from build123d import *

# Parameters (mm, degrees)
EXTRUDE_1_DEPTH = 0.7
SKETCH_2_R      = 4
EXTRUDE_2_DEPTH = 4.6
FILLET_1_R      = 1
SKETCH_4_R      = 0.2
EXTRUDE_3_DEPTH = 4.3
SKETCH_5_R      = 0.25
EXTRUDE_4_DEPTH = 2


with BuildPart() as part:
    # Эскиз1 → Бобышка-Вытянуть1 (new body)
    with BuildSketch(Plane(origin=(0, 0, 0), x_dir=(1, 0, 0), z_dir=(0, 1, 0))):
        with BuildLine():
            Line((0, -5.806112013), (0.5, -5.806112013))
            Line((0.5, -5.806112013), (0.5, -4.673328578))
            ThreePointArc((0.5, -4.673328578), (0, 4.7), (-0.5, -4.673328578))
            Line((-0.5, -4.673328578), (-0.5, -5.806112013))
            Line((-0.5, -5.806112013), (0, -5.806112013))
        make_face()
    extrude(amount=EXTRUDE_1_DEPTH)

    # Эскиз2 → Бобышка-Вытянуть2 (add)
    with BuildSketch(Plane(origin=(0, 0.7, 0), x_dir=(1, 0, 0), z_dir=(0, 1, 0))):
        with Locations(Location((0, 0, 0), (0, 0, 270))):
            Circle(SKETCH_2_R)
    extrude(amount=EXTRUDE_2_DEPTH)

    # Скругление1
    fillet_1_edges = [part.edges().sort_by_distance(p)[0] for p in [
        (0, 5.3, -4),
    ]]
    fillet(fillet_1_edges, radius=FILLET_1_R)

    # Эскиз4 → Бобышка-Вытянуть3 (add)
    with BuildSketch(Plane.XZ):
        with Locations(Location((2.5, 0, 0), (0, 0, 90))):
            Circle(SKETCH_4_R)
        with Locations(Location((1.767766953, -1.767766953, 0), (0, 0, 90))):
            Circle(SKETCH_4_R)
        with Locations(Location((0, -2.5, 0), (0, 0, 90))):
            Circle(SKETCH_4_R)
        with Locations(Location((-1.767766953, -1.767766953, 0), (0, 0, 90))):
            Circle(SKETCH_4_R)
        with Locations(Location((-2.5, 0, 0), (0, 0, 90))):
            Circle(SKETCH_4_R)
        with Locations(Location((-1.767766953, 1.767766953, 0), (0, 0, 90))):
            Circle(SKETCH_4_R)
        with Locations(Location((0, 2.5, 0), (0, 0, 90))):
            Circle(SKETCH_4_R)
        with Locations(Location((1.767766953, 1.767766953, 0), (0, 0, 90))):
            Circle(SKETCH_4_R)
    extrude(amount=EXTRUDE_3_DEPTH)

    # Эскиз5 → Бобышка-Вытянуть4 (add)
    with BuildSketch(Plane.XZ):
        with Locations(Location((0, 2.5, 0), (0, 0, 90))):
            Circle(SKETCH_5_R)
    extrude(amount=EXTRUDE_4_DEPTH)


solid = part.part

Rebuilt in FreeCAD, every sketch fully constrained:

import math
import FreeCAD as App
import Part
import Sketcher

V = App.Vector
Q = App.Units.Quantity


def edges_at(feature, points):
    """Names of the edges that pass closest to the given points."""
    edges = feature.Shape.Edges
    near = lambda p: min(range(len(edges)), key=lambda i: edges[i].distToShape(Part.Vertex(*p))[0])
    return sorted({f"Edge{near(p) + 1}" for p in points})

doc = App.newDocument("Part")
body = doc.addObject("PartDesign::Body", "Body")

# Sketch on XZ plane
sketch1 = doc.addObject("Sketcher::SketchObject", "Sketch")
body.addObject(sketch1)
sketch1.AttachmentSupport = (doc.XZ_Plane, [""])
sketch1.MapMode = "FlatFace"
sketch1.addGeometry([
    Part.LineSegment(V(0.5, 5.8, 0), V(0.5, 4.7, 0)),
    Part.ArcOfCircle(Part.Circle(V(0, 0, 0), V(0, 0, 1), 4.7), math.radians(96), math.radians(444)),
    Part.LineSegment(V(-0.5, 4.7, 0), V(-0.5, 5.8, 0)),
    Part.LineSegment(V(-0.5, 5.8, 0), V(0.5, 5.8, 0)),
], False)
sketch1.addConstraint([
    Sketcher.Constraint("Coincident", 0, 2, 1, 2),
    Sketcher.Constraint("Coincident", 1, 1, 2, 1),
    Sketcher.Constraint("Coincident", 2, 2, 3, 1),
    Sketcher.Constraint("Coincident", 3, 2, 0, 1),
    Sketcher.Constraint("Vertical", 0),
    Sketcher.Constraint("Vertical", 2),
    Sketcher.Constraint("Horizontal", 3),
    Sketcher.Constraint("Coincident", 1, 3, -1, 1),
    Sketcher.Constraint("Horizontal", 0, 2, 1, 1),
    Sketcher.Constraint("Radius", 1, Q("4.7 mm")),
    Sketcher.Constraint("DistanceX", 3, 1, 3, 2, Q("1 mm")),
    Sketcher.Constraint("DistanceY", 0, 2, 0, 1, Q("1.132783 mm")),
])
pad1 = doc.addObject("PartDesign::Pad", "Pad")
body.addObject(pad1)
pad1.Profile = sketch1
pad1.Length = 0.7
pad1.Reversed = True

# Sketch on XZ plane
sketch2 = doc.addObject("Sketcher::SketchObject", "Sketch001")
body.addObject(sketch2)
sketch2.AttachmentSupport = (doc.XZ_Plane, [""])
sketch2.MapMode = "FlatFace"
sketch2.AttachmentOffset = App.Placement(V(0, 0, -0.7), App.Rotation())
sketch2.addGeometry(Part.Circle(V(0, 0, 0), V(0, 0, 1), 4), False)
sketch2.addConstraint([
    Sketcher.Constraint("Coincident", 0, 3, -1, 1),
    Sketcher.Constraint("Diameter", 0, Q("8 mm")),
])
pad2 = doc.addObject("PartDesign::Pad", "Pad001")
body.addObject(pad2)
pad2.Profile = sketch2
pad2.Length = 4.6
pad2.Reversed = True
doc.recompute()

fillet = doc.addObject("PartDesign::Fillet", "Fillet")
body.addObject(fillet)
fillet.Base = (pad2, edges_at(pad2, [(0, 5.3, -4)]))
fillet.Radius = 1

# Sketch on XZ plane
sketch3 = doc.addObject("Sketcher::SketchObject", "Sketch002")
body.addObject(sketch3)
sketch3.AttachmentSupport = (doc.XZ_Plane, [""])
sketch3.MapMode = "FlatFace"
sketch3.addGeometry([
    Part.Circle(V(2.5, 0, 0), V(0, 0, 1), 0.2),  # 0
    Part.Circle(V(1.77, -1.77, 0), V(0, 0, 1), 0.2),  # 1
    Part.Circle(V(0, -2.5, 0), V(0, 0, 1), 0.2),  # 2
    Part.Circle(V(-1.77, -1.77, 0), V(0, 0, 1), 0.2),  # 3
    Part.Circle(V(-2.5, 0, 0), V(0, 0, 1), 0.2),  # 4
    Part.Circle(V(-1.77, 1.77, 0), V(0, 0, 1), 0.2),  # 5
    Part.Circle(V(0, 2.5, 0), V(0, 0, 1), 0.2),  # 6
    Part.Circle(V(1.77, 1.77, 0), V(0, 0, 1), 0.2),  # 7
], False)
sketch3.addConstraint([
    Sketcher.Constraint("Equal", 0, 1),
    Sketcher.Constraint("Equal", 1, 2),
    Sketcher.Constraint("Equal", 2, 3),
    Sketcher.Constraint("Equal", 3, 4),
    Sketcher.Constraint("Equal", 4, 5),
    Sketcher.Constraint("Equal", 5, 6),
    Sketcher.Constraint("Equal", 6, 7),
    Sketcher.Constraint("Symmetric", 0, 3, 4, 3, -1, 1),
    Sketcher.Constraint("Symmetric", 1, 3, 5, 3, -1, 1),
    Sketcher.Constraint("Symmetric", 2, 3, 6, 3, -1, 1),
    Sketcher.Constraint("Symmetric", 3, 3, 7, 3, -1, 1),
    Sketcher.Constraint("Symmetric", 1, 3, 3, 3, -2),
    Sketcher.Constraint("PointOnObject", 0, 3, -1),
    Sketcher.Constraint("PointOnObject", 2, 3, -2),
    Sketcher.Constraint("Diameter", 0, Q("0.4 mm")),
    Sketcher.Constraint("DistanceX", 4, 3, 0, 3, Q("5 mm")),
    Sketcher.Constraint("DistanceY", 2, 3, -1, 1, Q("2.5 mm")),
    Sketcher.Constraint("DistanceX", -1, 1, 1, 3, Q("1.767767 mm")),
    Sketcher.Constraint("DistanceY", 1, 3, -1, 1, Q("1.767767 mm")),
])
pad3 = doc.addObject("PartDesign::Pad", "Pad002")
body.addObject(pad3)
pad3.Profile = sketch3
pad3.Length = 4.3

# Sketch on XZ plane
sketch4 = doc.addObject("Sketcher::SketchObject", "Sketch003")
body.addObject(sketch4)
sketch4.AttachmentSupport = (doc.XZ_Plane, [""])
sketch4.MapMode = "FlatFace"
sketch4.addGeometry(Part.Circle(V(0, 2.5, 0), V(0, 0, 1), 0.25), False)
sketch4.addConstraint([
    Sketcher.Constraint("PointOnObject", 0, 3, -2),
    Sketcher.Constraint("Diameter", 0, Q("0.5 mm")),
    Sketcher.Constraint("DistanceY", -1, 1, 0, 3, Q("2.5 mm")),
])
pad4 = doc.addObject("PartDesign::Pad", "Pad003")
body.addObject(pad4)
pad4.Profile = sketch4
pad4.Length = 2

doc.recompute()
